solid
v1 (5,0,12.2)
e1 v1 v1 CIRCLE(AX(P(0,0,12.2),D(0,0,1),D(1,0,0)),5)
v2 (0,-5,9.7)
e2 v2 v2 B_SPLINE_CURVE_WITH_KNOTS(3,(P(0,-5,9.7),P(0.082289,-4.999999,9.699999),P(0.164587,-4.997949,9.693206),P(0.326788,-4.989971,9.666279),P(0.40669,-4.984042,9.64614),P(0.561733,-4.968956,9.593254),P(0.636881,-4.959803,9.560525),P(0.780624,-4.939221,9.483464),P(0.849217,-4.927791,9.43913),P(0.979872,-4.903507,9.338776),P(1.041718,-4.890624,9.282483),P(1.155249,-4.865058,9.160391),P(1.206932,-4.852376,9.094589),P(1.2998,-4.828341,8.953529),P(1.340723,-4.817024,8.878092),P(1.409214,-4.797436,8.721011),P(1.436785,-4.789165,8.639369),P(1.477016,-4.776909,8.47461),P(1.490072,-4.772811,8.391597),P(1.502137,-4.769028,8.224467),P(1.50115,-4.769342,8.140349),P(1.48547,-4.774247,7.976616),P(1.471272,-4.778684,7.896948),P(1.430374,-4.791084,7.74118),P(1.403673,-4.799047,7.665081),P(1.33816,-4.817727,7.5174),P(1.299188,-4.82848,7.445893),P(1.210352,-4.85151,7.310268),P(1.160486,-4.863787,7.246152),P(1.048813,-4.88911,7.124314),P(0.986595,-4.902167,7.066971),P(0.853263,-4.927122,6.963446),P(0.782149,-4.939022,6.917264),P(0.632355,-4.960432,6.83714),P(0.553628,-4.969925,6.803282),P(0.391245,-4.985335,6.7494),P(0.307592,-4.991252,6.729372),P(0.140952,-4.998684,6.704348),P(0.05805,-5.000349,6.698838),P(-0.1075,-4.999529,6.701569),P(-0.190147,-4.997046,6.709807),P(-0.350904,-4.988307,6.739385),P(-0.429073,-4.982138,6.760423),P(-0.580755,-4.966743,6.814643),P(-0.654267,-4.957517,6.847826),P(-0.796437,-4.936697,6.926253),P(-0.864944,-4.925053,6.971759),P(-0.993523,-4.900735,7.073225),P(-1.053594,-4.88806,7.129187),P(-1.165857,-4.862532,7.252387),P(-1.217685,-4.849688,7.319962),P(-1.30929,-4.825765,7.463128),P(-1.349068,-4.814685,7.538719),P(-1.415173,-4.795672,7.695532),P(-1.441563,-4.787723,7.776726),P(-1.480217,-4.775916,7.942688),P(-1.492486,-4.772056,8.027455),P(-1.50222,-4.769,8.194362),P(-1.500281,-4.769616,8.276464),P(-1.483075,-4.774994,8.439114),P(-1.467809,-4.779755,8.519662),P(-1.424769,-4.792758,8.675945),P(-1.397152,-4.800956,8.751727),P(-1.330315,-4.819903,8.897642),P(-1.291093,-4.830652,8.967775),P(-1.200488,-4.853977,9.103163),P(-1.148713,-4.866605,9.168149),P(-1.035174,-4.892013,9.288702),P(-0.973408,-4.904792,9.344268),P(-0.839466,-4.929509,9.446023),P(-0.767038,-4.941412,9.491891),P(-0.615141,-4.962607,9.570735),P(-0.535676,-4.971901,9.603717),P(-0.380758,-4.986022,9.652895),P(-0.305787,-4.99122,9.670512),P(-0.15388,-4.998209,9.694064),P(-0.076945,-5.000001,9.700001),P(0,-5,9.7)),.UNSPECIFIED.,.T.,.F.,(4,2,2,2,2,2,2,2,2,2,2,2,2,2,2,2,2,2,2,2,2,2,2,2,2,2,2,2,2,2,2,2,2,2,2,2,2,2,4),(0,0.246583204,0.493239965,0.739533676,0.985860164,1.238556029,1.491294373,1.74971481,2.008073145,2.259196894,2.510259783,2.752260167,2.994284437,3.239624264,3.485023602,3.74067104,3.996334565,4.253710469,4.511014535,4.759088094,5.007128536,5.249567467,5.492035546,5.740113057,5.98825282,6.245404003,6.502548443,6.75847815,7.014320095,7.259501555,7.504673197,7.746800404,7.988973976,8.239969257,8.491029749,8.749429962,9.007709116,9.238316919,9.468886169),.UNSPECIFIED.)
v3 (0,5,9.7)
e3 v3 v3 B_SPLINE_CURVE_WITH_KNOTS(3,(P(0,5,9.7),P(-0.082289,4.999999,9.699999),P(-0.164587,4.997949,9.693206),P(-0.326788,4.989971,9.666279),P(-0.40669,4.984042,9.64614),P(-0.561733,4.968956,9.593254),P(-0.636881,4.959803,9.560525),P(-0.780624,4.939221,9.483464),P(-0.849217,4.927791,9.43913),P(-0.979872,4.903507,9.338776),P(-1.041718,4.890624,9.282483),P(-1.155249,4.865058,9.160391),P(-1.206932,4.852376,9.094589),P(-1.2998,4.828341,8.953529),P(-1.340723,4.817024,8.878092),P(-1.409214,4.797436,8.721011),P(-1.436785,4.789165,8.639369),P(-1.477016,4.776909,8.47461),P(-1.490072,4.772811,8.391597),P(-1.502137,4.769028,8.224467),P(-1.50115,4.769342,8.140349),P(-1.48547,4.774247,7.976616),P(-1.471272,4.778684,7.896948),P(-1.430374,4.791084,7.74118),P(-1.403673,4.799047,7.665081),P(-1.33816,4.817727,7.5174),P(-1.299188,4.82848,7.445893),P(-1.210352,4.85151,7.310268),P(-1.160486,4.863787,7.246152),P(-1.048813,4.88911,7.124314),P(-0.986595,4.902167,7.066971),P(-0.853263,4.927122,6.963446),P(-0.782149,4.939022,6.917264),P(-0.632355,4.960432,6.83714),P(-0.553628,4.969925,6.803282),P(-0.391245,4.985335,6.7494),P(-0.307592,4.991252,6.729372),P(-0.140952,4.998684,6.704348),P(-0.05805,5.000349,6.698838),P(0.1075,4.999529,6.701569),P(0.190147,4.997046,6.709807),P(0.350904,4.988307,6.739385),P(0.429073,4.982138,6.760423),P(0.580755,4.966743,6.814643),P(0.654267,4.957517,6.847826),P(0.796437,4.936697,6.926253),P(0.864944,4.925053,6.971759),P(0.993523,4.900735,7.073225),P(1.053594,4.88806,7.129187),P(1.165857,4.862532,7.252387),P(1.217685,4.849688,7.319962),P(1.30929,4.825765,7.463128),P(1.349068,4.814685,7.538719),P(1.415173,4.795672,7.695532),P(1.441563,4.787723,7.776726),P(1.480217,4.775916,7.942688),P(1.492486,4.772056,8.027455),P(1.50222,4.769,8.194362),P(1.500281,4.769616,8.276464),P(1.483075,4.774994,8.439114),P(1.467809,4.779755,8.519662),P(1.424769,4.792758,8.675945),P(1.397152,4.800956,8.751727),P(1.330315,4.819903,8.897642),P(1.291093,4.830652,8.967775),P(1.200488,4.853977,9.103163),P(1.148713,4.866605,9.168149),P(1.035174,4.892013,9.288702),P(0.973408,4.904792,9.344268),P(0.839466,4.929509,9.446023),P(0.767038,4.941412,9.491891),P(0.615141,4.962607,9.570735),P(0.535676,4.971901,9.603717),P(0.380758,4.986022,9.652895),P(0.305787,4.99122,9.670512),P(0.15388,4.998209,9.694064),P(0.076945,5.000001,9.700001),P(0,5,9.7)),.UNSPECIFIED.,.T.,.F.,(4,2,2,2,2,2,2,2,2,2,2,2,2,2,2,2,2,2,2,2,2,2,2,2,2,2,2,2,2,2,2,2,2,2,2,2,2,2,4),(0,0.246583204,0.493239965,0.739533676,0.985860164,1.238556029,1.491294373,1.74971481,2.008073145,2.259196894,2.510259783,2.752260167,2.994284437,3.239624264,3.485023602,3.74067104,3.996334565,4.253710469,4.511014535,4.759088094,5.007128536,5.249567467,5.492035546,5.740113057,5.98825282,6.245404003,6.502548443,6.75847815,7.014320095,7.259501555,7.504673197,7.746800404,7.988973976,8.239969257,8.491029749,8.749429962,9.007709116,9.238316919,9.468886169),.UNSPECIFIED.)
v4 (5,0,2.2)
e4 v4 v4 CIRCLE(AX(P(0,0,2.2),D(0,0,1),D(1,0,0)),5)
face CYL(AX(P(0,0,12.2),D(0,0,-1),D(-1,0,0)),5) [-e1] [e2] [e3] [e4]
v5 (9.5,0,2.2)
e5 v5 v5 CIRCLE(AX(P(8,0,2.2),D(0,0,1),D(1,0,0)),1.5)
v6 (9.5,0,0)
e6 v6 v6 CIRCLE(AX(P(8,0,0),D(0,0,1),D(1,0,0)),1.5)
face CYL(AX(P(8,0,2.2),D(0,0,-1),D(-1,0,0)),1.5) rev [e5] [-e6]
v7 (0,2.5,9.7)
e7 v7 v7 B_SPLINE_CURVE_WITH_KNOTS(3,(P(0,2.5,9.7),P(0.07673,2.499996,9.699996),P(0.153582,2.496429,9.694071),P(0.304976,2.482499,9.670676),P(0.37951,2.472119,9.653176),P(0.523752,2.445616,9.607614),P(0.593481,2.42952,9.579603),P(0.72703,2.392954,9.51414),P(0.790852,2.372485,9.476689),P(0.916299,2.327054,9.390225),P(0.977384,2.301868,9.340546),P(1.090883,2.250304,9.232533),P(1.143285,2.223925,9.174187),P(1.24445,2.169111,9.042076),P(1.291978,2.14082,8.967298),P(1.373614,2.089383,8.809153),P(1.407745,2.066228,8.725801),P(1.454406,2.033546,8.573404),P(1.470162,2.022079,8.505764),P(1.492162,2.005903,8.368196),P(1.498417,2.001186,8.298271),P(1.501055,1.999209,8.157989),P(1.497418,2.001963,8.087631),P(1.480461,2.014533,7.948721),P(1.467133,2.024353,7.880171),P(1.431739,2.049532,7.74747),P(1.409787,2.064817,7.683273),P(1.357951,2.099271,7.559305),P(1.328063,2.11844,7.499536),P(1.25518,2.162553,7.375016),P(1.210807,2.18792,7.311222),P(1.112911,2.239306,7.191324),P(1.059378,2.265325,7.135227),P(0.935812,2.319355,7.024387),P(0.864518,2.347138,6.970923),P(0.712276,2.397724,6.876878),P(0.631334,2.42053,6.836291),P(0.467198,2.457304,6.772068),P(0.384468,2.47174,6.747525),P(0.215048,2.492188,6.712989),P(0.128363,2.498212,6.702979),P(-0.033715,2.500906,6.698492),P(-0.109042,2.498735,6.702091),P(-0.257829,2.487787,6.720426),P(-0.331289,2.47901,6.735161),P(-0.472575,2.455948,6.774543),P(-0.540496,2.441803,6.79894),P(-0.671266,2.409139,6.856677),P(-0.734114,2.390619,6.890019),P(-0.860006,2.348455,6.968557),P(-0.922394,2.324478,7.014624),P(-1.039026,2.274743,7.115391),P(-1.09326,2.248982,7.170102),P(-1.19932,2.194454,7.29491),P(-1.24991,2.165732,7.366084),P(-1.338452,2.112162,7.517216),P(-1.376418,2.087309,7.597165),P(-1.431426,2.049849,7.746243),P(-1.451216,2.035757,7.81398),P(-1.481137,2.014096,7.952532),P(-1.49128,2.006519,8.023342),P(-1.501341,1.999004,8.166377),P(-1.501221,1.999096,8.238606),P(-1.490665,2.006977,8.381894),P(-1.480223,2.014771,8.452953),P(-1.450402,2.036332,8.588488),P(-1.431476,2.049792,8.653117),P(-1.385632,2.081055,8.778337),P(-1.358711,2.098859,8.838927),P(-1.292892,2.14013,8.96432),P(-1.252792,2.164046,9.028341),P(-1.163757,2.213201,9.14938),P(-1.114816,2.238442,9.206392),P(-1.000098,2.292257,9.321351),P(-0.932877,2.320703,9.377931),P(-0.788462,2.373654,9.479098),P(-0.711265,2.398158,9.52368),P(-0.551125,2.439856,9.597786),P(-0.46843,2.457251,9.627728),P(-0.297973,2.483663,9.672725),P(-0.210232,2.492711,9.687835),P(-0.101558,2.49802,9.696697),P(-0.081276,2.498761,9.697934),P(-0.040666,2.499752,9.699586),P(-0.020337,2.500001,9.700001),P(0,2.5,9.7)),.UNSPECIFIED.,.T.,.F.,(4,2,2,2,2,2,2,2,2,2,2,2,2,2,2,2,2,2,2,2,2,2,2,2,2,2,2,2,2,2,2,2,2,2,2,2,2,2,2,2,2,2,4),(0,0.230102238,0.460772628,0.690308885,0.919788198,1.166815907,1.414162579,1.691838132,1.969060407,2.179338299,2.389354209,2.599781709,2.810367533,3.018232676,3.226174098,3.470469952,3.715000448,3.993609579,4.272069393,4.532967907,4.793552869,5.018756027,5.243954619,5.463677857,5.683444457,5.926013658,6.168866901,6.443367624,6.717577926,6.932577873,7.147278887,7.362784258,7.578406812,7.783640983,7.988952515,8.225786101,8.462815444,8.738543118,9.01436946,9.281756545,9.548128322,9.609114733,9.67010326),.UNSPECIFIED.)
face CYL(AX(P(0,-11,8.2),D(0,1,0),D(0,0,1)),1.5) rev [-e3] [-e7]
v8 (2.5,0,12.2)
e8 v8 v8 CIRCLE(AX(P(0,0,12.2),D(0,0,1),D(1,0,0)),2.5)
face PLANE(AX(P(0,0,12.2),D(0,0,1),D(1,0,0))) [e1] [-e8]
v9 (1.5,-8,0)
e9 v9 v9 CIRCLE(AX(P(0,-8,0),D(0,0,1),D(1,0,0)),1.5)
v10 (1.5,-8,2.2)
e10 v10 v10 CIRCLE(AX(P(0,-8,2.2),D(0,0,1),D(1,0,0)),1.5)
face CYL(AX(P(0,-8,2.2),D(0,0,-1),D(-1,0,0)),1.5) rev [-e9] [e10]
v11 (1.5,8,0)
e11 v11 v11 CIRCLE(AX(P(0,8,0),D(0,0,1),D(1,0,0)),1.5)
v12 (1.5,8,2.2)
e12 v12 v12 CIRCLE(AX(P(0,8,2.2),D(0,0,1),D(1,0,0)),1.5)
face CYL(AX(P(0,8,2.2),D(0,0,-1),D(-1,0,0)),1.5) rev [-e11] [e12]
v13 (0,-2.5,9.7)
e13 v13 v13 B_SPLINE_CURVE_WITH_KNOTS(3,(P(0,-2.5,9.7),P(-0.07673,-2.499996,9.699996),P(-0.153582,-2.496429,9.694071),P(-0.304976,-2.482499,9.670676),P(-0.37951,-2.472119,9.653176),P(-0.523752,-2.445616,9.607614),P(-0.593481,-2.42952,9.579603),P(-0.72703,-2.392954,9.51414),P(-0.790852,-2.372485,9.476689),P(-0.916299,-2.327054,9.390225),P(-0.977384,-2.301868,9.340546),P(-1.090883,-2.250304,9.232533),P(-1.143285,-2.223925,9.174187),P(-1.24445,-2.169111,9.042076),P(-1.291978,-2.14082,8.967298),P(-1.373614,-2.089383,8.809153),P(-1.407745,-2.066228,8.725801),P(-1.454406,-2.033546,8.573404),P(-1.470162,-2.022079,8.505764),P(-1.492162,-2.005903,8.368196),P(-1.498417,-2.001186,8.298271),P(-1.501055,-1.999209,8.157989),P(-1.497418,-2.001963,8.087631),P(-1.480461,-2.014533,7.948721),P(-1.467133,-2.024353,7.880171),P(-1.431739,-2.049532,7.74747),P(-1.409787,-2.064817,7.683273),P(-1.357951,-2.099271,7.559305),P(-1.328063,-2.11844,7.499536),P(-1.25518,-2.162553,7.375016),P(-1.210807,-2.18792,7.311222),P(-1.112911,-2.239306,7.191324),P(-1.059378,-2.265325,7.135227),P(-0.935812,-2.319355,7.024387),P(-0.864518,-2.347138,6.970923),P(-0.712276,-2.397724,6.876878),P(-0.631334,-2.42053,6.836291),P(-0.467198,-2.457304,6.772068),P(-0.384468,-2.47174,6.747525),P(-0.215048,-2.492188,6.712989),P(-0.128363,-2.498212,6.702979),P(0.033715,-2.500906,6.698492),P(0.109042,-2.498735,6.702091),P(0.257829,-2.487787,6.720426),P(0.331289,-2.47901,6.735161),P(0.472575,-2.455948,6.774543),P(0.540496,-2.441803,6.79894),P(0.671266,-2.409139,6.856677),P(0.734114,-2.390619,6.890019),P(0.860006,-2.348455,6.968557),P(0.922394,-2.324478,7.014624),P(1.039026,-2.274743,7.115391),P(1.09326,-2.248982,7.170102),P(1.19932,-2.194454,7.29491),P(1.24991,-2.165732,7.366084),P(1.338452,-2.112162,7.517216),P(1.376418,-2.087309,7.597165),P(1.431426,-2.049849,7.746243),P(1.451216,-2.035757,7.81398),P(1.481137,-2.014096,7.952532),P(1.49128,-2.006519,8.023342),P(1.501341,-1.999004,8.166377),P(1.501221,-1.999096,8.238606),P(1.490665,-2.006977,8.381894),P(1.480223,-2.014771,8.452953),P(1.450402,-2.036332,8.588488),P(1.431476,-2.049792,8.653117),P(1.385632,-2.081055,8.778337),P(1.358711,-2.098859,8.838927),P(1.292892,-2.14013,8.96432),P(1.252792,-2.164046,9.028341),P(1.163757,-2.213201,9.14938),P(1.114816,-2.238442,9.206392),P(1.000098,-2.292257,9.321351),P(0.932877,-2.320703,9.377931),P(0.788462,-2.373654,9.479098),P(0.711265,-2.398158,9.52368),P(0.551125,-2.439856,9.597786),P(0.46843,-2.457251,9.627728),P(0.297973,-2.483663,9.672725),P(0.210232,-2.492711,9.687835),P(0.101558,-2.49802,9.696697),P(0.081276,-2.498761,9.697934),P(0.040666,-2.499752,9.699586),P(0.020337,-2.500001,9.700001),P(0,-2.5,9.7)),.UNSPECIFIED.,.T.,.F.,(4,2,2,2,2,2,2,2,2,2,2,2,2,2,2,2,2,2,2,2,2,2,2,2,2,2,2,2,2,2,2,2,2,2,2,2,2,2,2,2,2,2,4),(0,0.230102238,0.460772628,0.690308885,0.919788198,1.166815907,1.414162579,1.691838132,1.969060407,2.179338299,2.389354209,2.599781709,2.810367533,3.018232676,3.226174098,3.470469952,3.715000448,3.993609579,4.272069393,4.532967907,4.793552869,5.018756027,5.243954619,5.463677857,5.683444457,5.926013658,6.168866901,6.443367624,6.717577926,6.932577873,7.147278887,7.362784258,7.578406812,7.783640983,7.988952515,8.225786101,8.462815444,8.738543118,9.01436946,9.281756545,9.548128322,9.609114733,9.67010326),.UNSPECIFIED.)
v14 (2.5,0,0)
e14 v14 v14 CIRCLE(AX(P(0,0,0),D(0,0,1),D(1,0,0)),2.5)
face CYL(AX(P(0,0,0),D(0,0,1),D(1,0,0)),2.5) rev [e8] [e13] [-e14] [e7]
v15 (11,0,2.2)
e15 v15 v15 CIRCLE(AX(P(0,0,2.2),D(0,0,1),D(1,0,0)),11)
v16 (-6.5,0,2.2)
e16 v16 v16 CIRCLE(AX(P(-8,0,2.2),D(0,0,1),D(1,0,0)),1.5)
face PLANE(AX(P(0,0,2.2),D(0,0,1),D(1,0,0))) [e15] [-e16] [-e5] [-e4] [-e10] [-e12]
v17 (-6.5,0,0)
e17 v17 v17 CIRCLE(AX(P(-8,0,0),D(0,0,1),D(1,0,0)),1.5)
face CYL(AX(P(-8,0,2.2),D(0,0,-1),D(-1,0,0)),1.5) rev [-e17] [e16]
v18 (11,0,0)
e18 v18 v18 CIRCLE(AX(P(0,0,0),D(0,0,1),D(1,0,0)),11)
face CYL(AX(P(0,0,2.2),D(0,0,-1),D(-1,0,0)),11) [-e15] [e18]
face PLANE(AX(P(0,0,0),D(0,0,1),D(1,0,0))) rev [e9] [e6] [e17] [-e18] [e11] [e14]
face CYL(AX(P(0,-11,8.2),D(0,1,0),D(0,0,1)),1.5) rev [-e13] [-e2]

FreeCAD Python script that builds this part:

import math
import FreeCAD as App
import Part
import Sketcher

V = App.Vector

doc = App.newDocument("Part")
body = doc.addObject("PartDesign::Body", "Body")

# Sketch on XY plane
sketch1 = body.newObject("Sketcher::SketchObject", "Sketch")
sketch1.AttachmentSupport = (doc.getObject("XY_Plane"), [""])
sketch1.MapMode = "FlatFace"
sketch1.addGeometry(Part.Circle(V(0, 0, 0), V(0, 0, 1), 11), False)
sketch1.addGeometry(Part.Circle(V(0, -8, 0), V(0, 0, 1), 1.5), False)
sketch1.addGeometry(Part.Circle(V(-8, 0, 0), V(0, 0, 1), 1.5), False)
sketch1.addGeometry(Part.Circle(V(8, 0, 0), V(0, 0, 1), 1.5), False)
sketch1.addGeometry(Part.Circle(V(0, 8, 0), V(0, 0, 1), 1.5), False)
sketch1.addConstraint(Sketcher.Constraint("Coincident", 0, 3, -1, 1))
sketch1.addConstraint(Sketcher.Constraint("Equal", 1, 2))
sketch1.addConstraint(Sketcher.Constraint("Equal", 2, 3))
sketch1.addConstraint(Sketcher.Constraint("Equal", 3, 4))
sketch1.addConstraint(Sketcher.Constraint("Symmetric", 2, 3, 3, 3, -1, 1))
sketch1.addConstraint(Sketcher.Constraint("Symmetric", 1, 3, 4, 3, -1, 1))
sketch1.addConstraint(Sketcher.Constraint("PointOnObject", 1, 3, -2))
sketch1.addConstraint(Sketcher.Constraint("PointOnObject", 2, 3, -1))
sketch1.addConstraint(Sketcher.Constraint("Diameter", 0, 22.0))
sketch1.addConstraint(Sketcher.Constraint("Diameter", 1, 3.0))
sketch1.addConstraint(Sketcher.Constraint("DistanceY", 1, 3, -1, 1, 8.0))
sketch1.addConstraint(Sketcher.Constraint("DistanceX", 2, 3, -1, 1, 8.0))
pad1 = body.newObject("PartDesign::Pad", "Pad")
pad1.Profile = sketch1
pad1.Length = 2.2

# Sketch on XY plane
sketch2 = body.newObject("Sketcher::SketchObject", "Sketch001")
sketch2.AttachmentSupport = (doc.getObject("XY_Plane"), [""])
sketch2.MapMode = "FlatFace"
sketch2.AttachmentOffset = App.Placement(V(0, 0, 2.2), App.Rotation())
sketch2.addGeometry(Part.Circle(V(0, 0, 0), V(0, 0, 1), 5), False)
sketch2.addConstraint(Sketcher.Constraint("Coincident", 0, 3, -1, 1))
sketch2.addConstraint(Sketcher.Constraint("Diameter", 0, 10.0))
pad2 = body.newObject("PartDesign::Pad", "Pad001")
pad2.Profile = sketch2
pad2.Length = 10

# Sketch on XY plane
sketch3 = body.newObject("Sketcher::SketchObject", "Sketch002")
sketch3.AttachmentSupport = (doc.getObject("XY_Plane"), [""])
sketch3.MapMode = "FlatFace"
sketch3.AttachmentOffset = App.Placement(V(0, 0, 12.2), App.Rotation())
sketch3.addGeometry(Part.Circle(V(0, 0, 0), V(0, 0, 1), 2.5), False)
sketch3.addConstraint(Sketcher.Constraint("Coincident", 0, 3, -1, 1))
sketch3.addConstraint(Sketcher.Constraint("Diameter", 0, 5.0))
pocket1 = body.newObject("PartDesign::Pocket", "Pocket")
pocket1.Profile = sketch3
pocket1.Type = "ThroughAll"

# Sketch on XZ plane
sketch4 = body.newObject("Sketcher::SketchObject", "Sketch003")
sketch4.AttachmentSupport = (doc.getObject("XZ_Plane"), [""])
sketch4.MapMode = "FlatFace"
sketch4.addGeometry(Part.ArcOfCircle(Part.Circle(V(0, 8.2, 0), V(0, 0, 1), 1.5), math.radians(-90), math.radians(0)), False)
sketch4.addGeometry(Part.ArcOfCircle(Part.Circle(V(0, 8.2, 0), V(0, 0, 1), 1.5), math.radians(90), math.radians(270)), False)
sketch4.addGeometry(Part.ArcOfCircle(Part.Circle(V(0, 8.2, 0), V(0, 0, 1), 1.5), math.radians(0), math.radians(90)), False)
sketch4.addConstraint(Sketcher.Constraint("Tangent", 0, 1, 1, 2))
sketch4.addConstraint(Sketcher.Constraint("Tangent", 1, 1, 2, 2))
sketch4.addConstraint(Sketcher.Constraint("Tangent", 2, 1, 0, 2))
sketch4.addConstraint(Sketcher.Constraint("PointOnObject", 0, 3, -2))
sketch4.addConstraint(Sketcher.Constraint("PointOnObject", 0, 1, -2))
sketch4.addConstraint(Sketcher.Constraint("PointOnObject", 1, 1, -2))
sketch4.addConstraint(Sketcher.Constraint("Horizontal", 1, 3, 2, 1))
sketch4.addConstraint(Sketcher.Constraint("Radius", 0, 1.5))
sketch4.addConstraint(Sketcher.Constraint("DistanceY", -1, 1, 0, 3, 8.2))
pocket2 = body.newObject("PartDesign::Pocket", "Pocket001")
pocket2.Profile = sketch4
pocket2.Type = "ThroughAll"
pocket2.Midplane = True

doc.recompute()
